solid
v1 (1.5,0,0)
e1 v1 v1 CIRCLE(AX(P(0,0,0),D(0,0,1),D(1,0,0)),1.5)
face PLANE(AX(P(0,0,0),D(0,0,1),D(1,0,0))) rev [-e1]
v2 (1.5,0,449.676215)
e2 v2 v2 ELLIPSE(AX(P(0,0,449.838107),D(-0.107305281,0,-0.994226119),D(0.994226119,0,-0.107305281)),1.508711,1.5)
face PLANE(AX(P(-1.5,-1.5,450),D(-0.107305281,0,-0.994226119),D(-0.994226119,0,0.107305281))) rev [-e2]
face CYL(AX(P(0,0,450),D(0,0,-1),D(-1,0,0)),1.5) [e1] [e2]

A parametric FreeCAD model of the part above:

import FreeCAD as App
import Part
import Sketcher
Q = App.Units.Quantity


def add_polygon(sketch, points):
    """Adds a closed chain of lines whose ends are joined by coincident constraints."""
    first, n = sketch.GeometryCount, len(points)
    for a, b in zip(points, points[1:] + points[:1]):
        sketch.addGeometry(Part.LineSegment(App.Vector(*a, 0), App.Vector(*b, 0)), False)
    for i in range(n):
        sketch.addConstraint(Sketcher.Constraint("Coincident", first + i, 2, first + (i + 1) % n, 1))

doc = App.newDocument("Part")
body = doc.addObject("PartDesign::Body", "Body")

# Sketch on XY plane
sketch1 = body.newObject("Sketcher::SketchObject", "Sketch")
sketch1.AttachmentSupport = (doc.getObject("XY_Plane"), [""])
sketch1.MapMode = "FlatFace"
sketch1.addGeometry(Part.Circle(App.Vector(0, 0, 0), App.Vector(0, 0, 1), 1.5), False)
sketch1.addConstraint([
    Sketcher.Constraint("Coincident", 0, 3, -1, 1),
    Sketcher.Constraint("Diameter", 0, Q("3 mm")),
])
pad1 = body.newObject("PartDesign::Pad", "Pad")
pad1.Profile = sketch1
pad1.Length = 450

# Sketch on XZ plane
sketch2 = body.newObject("Sketcher::SketchObject", "Sketch001")
sketch2.AttachmentSupport = (doc.getObject("XZ_Plane"), [""])
sketch2.MapMode = "FlatFace"
add_polygon(sketch2, [(-1.5, 450), (1.5, 450), (1.5, 449.68)])  # lines 0-2
sketch2.addConstraint([
    Sketcher.Constraint("Horizontal", 0),
    Sketcher.Constraint("Vertical", 1),
    Sketcher.Constraint("DistanceX", 0, 1, 0, 2, Q("3 mm")),
    Sketcher.Constraint("DistanceY", -1, 1, 0, 2, Q("450 mm")),
    Sketcher.Constraint("DistanceX", -1, 1, 0, 2, Q("1.5 mm")),
    Sketcher.Constraint("Angle", 2, Q("173.84 deg")),
])
pocket1 = body.newObject("PartDesign::Pocket", "Pocket")
pocket1.Profile = sketch2
pocket1.Type = "ThroughAll"
pocket1.Midplane = True

doc.recompute()
